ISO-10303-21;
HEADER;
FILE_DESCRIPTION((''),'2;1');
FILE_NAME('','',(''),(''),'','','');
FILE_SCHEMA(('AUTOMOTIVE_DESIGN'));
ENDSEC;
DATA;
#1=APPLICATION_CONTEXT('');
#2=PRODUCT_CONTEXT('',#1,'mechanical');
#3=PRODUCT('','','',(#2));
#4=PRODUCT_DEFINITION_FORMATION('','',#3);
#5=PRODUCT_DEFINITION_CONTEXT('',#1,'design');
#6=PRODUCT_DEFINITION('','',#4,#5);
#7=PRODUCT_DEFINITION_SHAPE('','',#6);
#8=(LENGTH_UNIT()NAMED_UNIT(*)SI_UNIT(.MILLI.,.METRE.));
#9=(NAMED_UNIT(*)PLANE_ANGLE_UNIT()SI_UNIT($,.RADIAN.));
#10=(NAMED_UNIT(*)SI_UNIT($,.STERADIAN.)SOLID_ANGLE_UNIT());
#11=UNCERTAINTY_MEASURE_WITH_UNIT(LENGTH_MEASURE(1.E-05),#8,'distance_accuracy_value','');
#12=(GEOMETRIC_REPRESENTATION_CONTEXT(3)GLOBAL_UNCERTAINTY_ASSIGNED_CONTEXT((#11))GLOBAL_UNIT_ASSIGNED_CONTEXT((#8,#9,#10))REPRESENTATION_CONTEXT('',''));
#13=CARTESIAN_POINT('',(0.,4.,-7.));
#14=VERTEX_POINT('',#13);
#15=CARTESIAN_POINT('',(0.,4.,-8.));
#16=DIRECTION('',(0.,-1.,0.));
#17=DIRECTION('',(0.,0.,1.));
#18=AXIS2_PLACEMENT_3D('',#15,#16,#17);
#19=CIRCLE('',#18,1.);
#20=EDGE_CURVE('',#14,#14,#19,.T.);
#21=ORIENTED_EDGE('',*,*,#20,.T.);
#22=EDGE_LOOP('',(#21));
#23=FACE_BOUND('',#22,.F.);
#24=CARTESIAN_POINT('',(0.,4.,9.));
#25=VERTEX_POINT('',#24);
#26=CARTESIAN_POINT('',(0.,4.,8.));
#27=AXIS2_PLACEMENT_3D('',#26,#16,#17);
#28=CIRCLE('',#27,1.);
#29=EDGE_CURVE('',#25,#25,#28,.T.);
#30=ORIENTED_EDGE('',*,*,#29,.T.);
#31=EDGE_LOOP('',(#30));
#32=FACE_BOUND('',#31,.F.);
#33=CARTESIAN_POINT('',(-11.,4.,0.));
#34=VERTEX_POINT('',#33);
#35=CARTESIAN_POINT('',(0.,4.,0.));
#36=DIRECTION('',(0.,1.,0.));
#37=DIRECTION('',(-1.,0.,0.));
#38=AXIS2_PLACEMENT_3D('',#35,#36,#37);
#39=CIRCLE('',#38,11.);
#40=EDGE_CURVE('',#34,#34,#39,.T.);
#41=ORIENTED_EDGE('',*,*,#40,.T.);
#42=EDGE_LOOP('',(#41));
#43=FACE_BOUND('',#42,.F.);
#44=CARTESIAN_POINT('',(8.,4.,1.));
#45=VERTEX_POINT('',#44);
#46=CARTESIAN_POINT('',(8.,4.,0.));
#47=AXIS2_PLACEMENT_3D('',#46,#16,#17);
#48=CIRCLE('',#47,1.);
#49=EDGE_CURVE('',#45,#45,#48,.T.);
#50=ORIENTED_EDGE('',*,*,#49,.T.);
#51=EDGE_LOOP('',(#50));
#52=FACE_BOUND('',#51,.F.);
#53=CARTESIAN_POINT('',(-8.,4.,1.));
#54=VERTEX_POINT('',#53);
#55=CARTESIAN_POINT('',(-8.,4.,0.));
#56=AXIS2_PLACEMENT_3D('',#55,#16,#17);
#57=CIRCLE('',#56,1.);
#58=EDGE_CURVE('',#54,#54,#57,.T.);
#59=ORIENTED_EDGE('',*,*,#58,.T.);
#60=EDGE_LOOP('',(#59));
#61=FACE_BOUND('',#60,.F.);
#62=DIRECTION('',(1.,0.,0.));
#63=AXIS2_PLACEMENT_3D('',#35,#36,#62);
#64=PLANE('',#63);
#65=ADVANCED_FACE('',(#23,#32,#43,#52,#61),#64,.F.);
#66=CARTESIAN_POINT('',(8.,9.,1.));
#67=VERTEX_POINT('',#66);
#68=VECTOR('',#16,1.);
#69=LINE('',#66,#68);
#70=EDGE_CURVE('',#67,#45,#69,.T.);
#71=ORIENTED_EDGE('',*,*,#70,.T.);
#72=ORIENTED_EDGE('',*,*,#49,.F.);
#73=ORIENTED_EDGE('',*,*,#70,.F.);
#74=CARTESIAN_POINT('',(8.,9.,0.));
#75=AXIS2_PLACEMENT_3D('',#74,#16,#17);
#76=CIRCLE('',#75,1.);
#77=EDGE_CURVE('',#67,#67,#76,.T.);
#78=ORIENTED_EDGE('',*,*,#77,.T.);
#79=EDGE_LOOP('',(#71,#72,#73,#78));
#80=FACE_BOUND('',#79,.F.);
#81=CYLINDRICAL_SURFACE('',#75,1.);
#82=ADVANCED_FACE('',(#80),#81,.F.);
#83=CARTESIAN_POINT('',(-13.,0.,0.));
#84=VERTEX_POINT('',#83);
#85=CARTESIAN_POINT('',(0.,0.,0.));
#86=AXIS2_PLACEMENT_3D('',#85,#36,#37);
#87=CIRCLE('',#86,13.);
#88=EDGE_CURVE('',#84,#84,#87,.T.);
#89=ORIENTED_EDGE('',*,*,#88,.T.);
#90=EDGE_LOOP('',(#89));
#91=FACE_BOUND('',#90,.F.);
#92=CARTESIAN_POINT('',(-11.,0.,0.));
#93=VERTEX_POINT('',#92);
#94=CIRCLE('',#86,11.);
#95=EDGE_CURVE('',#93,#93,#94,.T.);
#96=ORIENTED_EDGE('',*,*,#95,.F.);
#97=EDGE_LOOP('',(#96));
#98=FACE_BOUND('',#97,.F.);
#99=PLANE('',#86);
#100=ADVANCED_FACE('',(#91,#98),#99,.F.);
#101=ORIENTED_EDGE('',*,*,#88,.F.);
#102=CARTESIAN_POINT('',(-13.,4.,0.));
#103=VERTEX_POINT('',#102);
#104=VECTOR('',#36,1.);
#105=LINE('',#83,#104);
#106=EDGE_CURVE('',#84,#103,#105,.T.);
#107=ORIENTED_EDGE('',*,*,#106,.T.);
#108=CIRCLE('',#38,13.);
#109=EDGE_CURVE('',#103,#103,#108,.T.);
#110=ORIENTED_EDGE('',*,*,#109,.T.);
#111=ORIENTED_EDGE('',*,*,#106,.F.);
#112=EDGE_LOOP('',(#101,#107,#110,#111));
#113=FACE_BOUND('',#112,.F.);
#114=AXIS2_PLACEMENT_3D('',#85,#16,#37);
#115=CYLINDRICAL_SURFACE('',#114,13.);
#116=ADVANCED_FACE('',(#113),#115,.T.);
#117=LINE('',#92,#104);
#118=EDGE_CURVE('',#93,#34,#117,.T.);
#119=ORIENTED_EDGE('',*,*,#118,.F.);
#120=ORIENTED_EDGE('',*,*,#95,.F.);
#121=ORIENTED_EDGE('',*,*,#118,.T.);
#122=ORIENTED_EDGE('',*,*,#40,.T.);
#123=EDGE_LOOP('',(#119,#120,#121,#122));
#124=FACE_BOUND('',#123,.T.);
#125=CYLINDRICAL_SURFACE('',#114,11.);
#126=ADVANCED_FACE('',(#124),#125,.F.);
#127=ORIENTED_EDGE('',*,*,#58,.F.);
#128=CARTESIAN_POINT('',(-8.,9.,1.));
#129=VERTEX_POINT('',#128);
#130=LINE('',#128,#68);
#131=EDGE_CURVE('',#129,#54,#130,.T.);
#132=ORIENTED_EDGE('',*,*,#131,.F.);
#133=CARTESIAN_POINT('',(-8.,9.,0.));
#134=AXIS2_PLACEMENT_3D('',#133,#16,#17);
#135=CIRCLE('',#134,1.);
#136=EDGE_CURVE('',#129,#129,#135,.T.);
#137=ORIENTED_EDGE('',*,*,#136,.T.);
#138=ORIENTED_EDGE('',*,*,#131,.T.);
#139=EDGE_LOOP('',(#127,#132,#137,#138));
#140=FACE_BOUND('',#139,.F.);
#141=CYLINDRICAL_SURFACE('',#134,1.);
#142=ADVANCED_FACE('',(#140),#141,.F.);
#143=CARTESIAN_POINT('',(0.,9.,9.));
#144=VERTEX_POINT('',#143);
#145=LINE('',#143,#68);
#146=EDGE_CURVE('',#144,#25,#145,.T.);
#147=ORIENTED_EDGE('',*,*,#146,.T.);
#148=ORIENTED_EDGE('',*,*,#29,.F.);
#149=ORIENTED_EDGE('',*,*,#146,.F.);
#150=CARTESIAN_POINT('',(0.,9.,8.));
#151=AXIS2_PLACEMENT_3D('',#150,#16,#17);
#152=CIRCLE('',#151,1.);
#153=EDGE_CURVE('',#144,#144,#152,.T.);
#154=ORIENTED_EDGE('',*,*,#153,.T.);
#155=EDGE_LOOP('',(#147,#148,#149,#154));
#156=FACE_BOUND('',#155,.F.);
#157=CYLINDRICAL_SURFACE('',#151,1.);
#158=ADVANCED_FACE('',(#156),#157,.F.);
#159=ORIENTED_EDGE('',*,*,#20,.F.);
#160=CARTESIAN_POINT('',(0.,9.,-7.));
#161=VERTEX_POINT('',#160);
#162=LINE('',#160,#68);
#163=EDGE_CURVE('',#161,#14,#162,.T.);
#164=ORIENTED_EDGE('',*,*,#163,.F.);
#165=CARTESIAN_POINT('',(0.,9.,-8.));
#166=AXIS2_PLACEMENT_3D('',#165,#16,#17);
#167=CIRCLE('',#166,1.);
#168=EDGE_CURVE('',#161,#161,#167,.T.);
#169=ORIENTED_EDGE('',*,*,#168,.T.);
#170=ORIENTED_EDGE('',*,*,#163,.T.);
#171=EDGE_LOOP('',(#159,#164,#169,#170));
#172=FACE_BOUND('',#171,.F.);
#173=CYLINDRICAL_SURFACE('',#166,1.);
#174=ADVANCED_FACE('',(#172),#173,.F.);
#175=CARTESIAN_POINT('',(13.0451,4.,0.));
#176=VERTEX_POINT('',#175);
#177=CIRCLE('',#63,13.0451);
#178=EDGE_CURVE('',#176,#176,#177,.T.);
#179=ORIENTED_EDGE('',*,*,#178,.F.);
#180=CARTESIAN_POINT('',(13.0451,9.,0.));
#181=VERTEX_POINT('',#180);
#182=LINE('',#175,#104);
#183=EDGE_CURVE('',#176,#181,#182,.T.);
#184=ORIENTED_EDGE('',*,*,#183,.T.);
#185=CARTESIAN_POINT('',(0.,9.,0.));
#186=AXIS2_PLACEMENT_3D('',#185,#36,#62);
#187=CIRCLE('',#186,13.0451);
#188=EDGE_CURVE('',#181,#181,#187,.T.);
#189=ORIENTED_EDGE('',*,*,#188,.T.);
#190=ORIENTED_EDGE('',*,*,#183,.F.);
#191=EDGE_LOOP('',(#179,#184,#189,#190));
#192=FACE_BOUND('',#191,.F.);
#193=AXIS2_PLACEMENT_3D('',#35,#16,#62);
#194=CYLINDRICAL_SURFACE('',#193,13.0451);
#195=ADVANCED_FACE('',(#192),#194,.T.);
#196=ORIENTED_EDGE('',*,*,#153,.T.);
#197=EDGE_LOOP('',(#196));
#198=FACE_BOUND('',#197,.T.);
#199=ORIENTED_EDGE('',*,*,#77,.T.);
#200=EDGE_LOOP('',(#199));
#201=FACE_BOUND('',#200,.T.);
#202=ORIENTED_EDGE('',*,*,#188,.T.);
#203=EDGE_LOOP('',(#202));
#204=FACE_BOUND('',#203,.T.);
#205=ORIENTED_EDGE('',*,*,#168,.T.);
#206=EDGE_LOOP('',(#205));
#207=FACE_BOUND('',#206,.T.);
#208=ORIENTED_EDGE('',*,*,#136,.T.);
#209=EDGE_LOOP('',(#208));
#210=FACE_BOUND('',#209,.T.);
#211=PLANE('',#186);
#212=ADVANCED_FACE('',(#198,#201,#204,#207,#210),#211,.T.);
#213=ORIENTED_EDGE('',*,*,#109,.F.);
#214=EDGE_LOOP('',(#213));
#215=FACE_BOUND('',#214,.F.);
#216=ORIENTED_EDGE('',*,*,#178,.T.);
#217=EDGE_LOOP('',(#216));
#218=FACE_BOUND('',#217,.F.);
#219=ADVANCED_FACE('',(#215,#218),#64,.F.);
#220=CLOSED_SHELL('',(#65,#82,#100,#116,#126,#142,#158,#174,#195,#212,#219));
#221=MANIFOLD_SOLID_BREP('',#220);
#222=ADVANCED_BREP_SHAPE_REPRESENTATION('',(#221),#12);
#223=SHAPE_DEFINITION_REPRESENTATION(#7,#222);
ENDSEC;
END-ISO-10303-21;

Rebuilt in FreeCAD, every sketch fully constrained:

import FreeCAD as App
import Part
import Sketcher

V = App.Vector

doc = App.newDocument("Part")
body = doc.addObject("PartDesign::Body", "Body")

# Sketch on XZ plane
sketch1 = body.newObject("Sketcher::SketchObject", "Sketch")
sketch1.AttachmentSupport = (doc.getObject("XZ_Plane"), [""])
sketch1.MapMode = "FlatFace"
sketch1.addGeometry([
    Part.Circle(V(0, 0, 0), V(0, 0, 1), 13),
    Part.Circle(V(0, 0, 0), V(0, 0, 1), 11),
], False)
sketch1.addConstraint([
    Sketcher.Constraint("Coincident", 0, 3, -1, 1),
    Sketcher.Constraint("Coincident", 1, 3, -1, 1),
    Sketcher.Constraint("Diameter", 0, 26.0),
    Sketcher.Constraint("Diameter", 1, 22.0),
])
pad1 = body.newObject("PartDesign::Pad", "Pad")
pad1.Profile = sketch1
pad1.Length = 4
pad1.Reversed = True

# Sketch on XZ plane
sketch2 = body.newObject("Sketcher::SketchObject", "Sketch001")
sketch2.AttachmentSupport = (doc.getObject("XZ_Plane"), [""])
sketch2.MapMode = "FlatFace"
sketch2.AttachmentOffset = App.Placement(V(0, 0, -4), App.Rotation())
sketch2.addGeometry(Part.Circle(V(0, 0, 0), V(0, 0, 1), 13), False)
sketch2.addConstraint([
    Sketcher.Constraint("Coincident", 0, 3, -1, 1),
    Sketcher.Constraint("Diameter", 0, 26.0902),
])
pad2 = body.newObject("PartDesign::Pad", "Pad001")
pad2.Profile = sketch2
pad2.Length = 5
pad2.Reversed = True

# Sketch on XZ plane
sketch3 = body.newObject("Sketcher::SketchObject", "Sketch002")
sketch3.AttachmentSupport = (doc.getObject("XZ_Plane"), [""])
sketch3.MapMode = "FlatFace"
sketch3.AttachmentOffset = App.Placement(V(0, 0, -9), App.Rotation())
sketch3.addGeometry([
    Part.Circle(V(-8, 0, 0), V(0, 0, 1), 1),
    Part.Circle(V(0, -8, 0), V(0, 0, 1), 1),
    Part.Circle(V(8, 0, 0), V(0, 0, 1), 1),
    Part.Circle(V(0, 8, 0), V(0, 0, 1), 1),
], False)
sketch3.addConstraint([
    Sketcher.Constraint("Equal", 0, 1),
    Sketcher.Constraint("Equal", 1, 2),
    Sketcher.Constraint("Equal", 2, 3),
    Sketcher.Constraint("Symmetric", 0, 3, 2, 3, -1, 1),
    Sketcher.Constraint("Symmetric", 1, 3, 3, 3, -1, 1),
    Sketcher.Constraint("PointOnObject", 0, 3, -1),
    Sketcher.Constraint("PointOnObject", 1, 3, -2),
    Sketcher.Constraint("Diameter", 0, 2.0),
    Sketcher.Constraint("DistanceX", 0, 3, -1, 1, 8.0),
    Sketcher.Constraint("DistanceY", 1, 3, -1, 1, 8.0),
])
doc.recompute()
hole = body.newObject("PartDesign::Hole", "Hole")
hole.Profile = sketch3
hole.ThreadType = "None"
hole.Diameter = 2
hole.DepthType = "ThroughAll"
hole.Reversed = True

doc.recompute()
